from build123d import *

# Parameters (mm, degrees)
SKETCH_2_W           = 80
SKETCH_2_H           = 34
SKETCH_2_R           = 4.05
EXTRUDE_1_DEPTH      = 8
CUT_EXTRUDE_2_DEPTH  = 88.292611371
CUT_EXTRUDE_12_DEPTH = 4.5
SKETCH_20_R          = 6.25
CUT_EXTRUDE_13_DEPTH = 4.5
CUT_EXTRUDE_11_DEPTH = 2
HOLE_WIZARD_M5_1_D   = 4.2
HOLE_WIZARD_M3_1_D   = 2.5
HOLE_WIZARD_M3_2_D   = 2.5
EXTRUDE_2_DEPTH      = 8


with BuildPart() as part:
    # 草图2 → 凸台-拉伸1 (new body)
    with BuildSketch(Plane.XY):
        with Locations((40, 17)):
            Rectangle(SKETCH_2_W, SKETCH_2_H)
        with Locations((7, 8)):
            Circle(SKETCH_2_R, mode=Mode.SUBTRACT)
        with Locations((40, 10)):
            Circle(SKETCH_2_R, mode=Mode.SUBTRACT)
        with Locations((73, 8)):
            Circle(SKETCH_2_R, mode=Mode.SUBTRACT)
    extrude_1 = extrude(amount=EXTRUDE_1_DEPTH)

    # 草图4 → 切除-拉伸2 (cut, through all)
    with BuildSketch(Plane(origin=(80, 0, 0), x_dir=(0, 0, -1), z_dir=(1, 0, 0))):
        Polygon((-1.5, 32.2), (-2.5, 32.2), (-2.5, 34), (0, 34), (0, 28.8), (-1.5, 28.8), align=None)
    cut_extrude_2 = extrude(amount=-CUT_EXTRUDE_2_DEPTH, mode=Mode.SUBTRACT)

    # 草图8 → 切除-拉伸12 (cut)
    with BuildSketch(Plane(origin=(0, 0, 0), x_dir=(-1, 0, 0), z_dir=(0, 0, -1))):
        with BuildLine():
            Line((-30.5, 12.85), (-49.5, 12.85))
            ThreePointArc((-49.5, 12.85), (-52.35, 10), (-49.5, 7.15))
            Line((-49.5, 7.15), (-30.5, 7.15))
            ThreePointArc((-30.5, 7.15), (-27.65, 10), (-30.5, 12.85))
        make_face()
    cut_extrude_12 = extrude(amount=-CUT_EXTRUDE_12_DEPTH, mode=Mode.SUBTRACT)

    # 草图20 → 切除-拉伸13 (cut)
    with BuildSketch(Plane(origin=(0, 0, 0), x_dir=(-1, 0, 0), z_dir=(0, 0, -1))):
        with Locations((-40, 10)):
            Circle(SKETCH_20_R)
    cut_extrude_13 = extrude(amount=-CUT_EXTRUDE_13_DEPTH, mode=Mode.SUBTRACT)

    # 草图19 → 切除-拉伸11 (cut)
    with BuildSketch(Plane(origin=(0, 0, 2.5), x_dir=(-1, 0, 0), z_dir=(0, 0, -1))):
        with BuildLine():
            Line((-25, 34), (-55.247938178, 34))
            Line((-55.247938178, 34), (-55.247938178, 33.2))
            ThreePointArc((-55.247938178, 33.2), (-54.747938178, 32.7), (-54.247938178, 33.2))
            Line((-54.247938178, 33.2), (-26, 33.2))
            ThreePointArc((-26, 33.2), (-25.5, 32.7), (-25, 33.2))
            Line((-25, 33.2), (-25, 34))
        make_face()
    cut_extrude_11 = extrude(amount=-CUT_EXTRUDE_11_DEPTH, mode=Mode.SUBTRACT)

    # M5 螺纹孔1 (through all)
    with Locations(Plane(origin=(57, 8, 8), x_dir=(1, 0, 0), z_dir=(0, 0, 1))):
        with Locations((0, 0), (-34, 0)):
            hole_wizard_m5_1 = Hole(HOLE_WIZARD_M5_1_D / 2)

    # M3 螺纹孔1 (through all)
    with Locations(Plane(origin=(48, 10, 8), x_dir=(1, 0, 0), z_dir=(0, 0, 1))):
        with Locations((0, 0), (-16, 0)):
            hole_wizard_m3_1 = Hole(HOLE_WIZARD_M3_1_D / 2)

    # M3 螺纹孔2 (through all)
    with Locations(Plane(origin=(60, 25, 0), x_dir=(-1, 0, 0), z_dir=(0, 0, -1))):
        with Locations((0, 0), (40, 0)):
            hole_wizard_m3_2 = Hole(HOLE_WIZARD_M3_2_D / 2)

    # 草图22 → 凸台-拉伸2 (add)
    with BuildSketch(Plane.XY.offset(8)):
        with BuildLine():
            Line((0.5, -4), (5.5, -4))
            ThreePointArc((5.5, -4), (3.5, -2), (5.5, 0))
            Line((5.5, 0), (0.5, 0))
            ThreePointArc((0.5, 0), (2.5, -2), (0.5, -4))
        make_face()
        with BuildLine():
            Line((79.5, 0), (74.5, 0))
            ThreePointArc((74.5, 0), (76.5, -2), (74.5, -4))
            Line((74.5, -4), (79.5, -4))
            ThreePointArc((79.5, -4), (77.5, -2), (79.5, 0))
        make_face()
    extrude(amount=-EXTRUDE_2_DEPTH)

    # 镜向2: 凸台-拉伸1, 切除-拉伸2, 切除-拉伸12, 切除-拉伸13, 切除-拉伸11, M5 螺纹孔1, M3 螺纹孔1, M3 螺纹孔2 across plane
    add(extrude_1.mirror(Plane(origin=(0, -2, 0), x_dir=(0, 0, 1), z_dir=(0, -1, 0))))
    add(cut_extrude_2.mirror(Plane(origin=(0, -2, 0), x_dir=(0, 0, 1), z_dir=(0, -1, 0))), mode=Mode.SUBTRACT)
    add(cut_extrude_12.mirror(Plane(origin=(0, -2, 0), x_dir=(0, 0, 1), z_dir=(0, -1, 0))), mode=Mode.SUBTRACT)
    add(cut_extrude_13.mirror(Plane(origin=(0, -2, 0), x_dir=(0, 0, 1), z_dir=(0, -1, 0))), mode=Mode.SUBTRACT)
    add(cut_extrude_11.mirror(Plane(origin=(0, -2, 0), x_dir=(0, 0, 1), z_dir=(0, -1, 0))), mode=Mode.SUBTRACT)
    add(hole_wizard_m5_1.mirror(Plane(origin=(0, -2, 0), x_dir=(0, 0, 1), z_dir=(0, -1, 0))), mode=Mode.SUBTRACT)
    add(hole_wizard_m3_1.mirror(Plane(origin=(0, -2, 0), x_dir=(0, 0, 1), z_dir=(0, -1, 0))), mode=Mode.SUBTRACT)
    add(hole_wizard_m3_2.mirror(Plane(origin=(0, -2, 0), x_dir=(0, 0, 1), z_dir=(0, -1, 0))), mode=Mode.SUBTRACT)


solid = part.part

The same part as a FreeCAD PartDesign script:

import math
import FreeCAD as App
import Part
import Sketcher

V = App.Vector


def add_polygon(sketch, points):
    """Adds a closed chain of lines whose ends are joined by coincident constraints."""
    first, n = sketch.GeometryCount, len(points)
    for a, b in zip(points, points[1:] + points[:1]):
        sketch.addGeometry(Part.LineSegment(App.Vector(*a, 0), App.Vector(*b, 0)), False)
    for i in range(n):
        sketch.addConstraint(Sketcher.Constraint("Coincident", first + i, 2, first + (i + 1) % n, 1))

doc = App.newDocument("Part")
body = doc.addObject("PartDesign::Body", "Body")

# Sketch on XY plane
sketch1 = doc.addObject("Sketcher::SketchObject", "Sketch")
body.addObject(sketch1)
sketch1.AttachmentSupport = (doc.XY_Plane, [""])
sketch1.MapMode = "FlatFace"
add_polygon(sketch1, [(0, 34), (0, 0), (80, 0), (80, 34)])  # lines 0-3
sketch1.addGeometry(Part.Circle(V(7, 8, 0), V(0, 0, 1), 4), False)  # 4
sketch1.addGeometry(Part.Circle(V(73, 8, 0), V(0, 0, 1), 4), False)  # 5
sketch1.addGeometry(Part.Circle(V(40, 10, 0), V(0, 0, 1), 4), False)  # 6
sketch1.addConstraint([
    Sketcher.Constraint("Vertical", 0),
    Sketcher.Constraint("Horizontal", 1),
    Sketcher.Constraint("Vertical", 2),
    Sketcher.Constraint("Horizontal", 3),
    Sketcher.Constraint("Coincident", 0, 2, -1, 1),
    Sketcher.Constraint("Equal", 4, 5),
    Sketcher.Constraint("Equal", 5, 6),
    Sketcher.Constraint("Horizontal", 4, 3, 5, 3),
    Sketcher.Constraint("Diameter", 4, 8.1),
    Sketcher.Constraint("DistanceX", 1, 1, 1, 2, 80.0),
    Sketcher.Constraint("DistanceY", 0, 2, 0, 1, 34.0),
    Sketcher.Constraint("DistanceX", -1, 1, 4, 3, 7.0),
    Sketcher.Constraint("DistanceY", -1, 1, 4, 3, 8.0),
    Sketcher.Constraint("DistanceX", -1, 1, 5, 3, 73.0),
    Sketcher.Constraint("DistanceX", -1, 1, 6, 3, 40.0),
    Sketcher.Constraint("DistanceY", -1, 1, 6, 3, 10.0),
])
pad1 = doc.addObject("PartDesign::Pad", "Pad")
body.addObject(pad1)
pad1.Profile = sketch1
pad1.Length = 8

# Sketch on YZ plane
sketch2 = doc.addObject("Sketcher::SketchObject", "Sketch001")
body.addObject(sketch2)
sketch2.AttachmentSupport = (doc.YZ_Plane, [""])
sketch2.MapMode = "FlatFace"
sketch2.AttachmentOffset = App.Placement(V(0, 0, 80), App.Rotation())
add_polygon(sketch2, [(32.2, 2.5), (32.2, 1.5), (28.8, 1.5), (28.8, 0), (34, 0), (34, 2.5)])  # lines 0-5
sketch2.addConstraint([
    Sketcher.Constraint("Vertical", 0),
    Sketcher.Constraint("Horizontal", 1),
    Sketcher.Constraint("Vertical", 2),
    Sketcher.Constraint("Horizontal", 3),
    Sketcher.Constraint("Vertical", 4),
    Sketcher.Constraint("Horizontal", 5),
    Sketcher.Constraint("PointOnObject", 2, 2, -1),
    Sketcher.Constraint("DistanceY", 0, 2, 0, 1, 1.0),
    Sketcher.Constraint("DistanceX", 1, 2, 1, 1, 3.4),
    Sketcher.Constraint("DistanceX", 3, 1, 3, 2, 5.2),
    Sketcher.Constraint("DistanceY", 2, 2, 2, 1, 1.5),
    Sketcher.Constraint("DistanceX", -1, 1, 3, 2, 34.0),
])
pocket1 = doc.addObject("PartDesign::Pocket", "Pocket")
body.addObject(pocket1)
pocket1.Profile = sketch2
pocket1.Type = "ThroughAll"

# Sketch on XY plane
sketch3 = doc.addObject("Sketcher::SketchObject", "Sketch002")
body.addObject(sketch3)
sketch3.AttachmentSupport = (doc.XY_Plane, [""])
sketch3.MapMode = "FlatFace"
sketch3.addGeometry([
    Part.LineSegment(V(30.5, 12.8, 0), V(49.5, 12.8, 0)),
    Part.ArcOfCircle(Part.Circle(V(49.5, 10, 0), V(0, 0, 1), 2.9), math.radians(-90), math.radians(90)),
    Part.LineSegment(V(49.5, 7.2, 0), V(30.5, 7.2, 0)),
    Part.ArcOfCircle(Part.Circle(V(30.5, 10, 0), V(0, 0, 1), 2.9), math.radians(90), math.radians(270)),
], False)
sketch3.addConstraint([
    Sketcher.Constraint("Tangent", 0, 2, 1, 2),
    Sketcher.Constraint("Tangent", 1, 1, 2, 1),
    Sketcher.Constraint("Tangent", 2, 2, 3, 2),
    Sketcher.Constraint("Tangent", 3, 1, 0, 1),
    Sketcher.Constraint("Horizontal", 0),
    Sketcher.Constraint("Horizontal", 2),
    Sketcher.Constraint("DistanceX", 0, 1, 0, 2, 19.0),
    Sketcher.Constraint("Radius", 1, 2.85),
    Sketcher.Constraint("DistanceY", -1, 1, 1, 3, 10.0),
    Sketcher.Constraint("DistanceX", -1, 1, 1, 3, 49.5),
])
pocket2 = doc.addObject("PartDesign::Pocket", "Pocket001")
body.addObject(pocket2)
pocket2.Profile = sketch3
pocket2.Length = 4.5
pocket2.Reversed = True

# Sketch on XY plane
sketch4 = doc.addObject("Sketcher::SketchObject", "Sketch003")
body.addObject(sketch4)
sketch4.AttachmentSupport = (doc.XY_Plane, [""])
sketch4.MapMode = "FlatFace"
sketch4.addGeometry(Part.Circle(V(40, 10, 0), V(0, 0, 1), 6), False)
sketch4.addConstraint([
    Sketcher.Constraint("Diameter", 0, 12.5),
    Sketcher.Constraint("DistanceX", -1, 1, 0, 3, 40.0),
    Sketcher.Constraint("DistanceY", -1, 1, 0, 3, 10.0),
])
pocket3 = doc.addObject("PartDesign::Pocket", "Pocket002")
body.addObject(pocket3)
pocket3.Profile = sketch4
pocket3.Length = 4.5
pocket3.Reversed = True

# Sketch on XY plane
sketch5 = doc.addObject("Sketcher::SketchObject", "Sketch004")
body.addObject(sketch5)
sketch5.AttachmentSupport = (doc.XY_Plane, [""])
sketch5.MapMode = "FlatFace"
sketch5.AttachmentOffset = App.Placement(V(0, 0, 2.5), App.Rotation())
sketch5.addGeometry([
    Part.LineSegment(V(25, 34, 0), V(55.2, 34, 0)),  # 0
    Part.LineSegment(V(55.2, 34, 0), V(55.2, 33.2, 0)),  # 1
    Part.ArcOfCircle(Part.Circle(V(54.7, 33.2, 0), V(0, 0, 1), 0.5), math.radians(180), math.radians(360)),  # 2
    Part.LineSegment(V(54.2, 33.2, 0), V(26, 33.2, 0)),  # 3
    Part.ArcOfCircle(Part.Circle(V(25.5, 33.2, 0), V(0, 0, 1), 0.5), math.radians(180), math.radians(360)),  # 4
    Part.LineSegment(V(25, 33.2, 0), V(25, 34, 0)),  # 5
], False)
sketch5.addConstraint([
    Sketcher.Constraint("Coincident", 0, 2, 1, 1),
    Sketcher.Constraint("Tangent", 1, 2, 2, 2),
    Sketcher.Constraint("Coincident", 2, 1, 3, 1),
    Sketcher.Constraint("Coincident", 3, 2, 4, 2),
    Sketcher.Constraint("Tangent", 4, 1, 5, 1),
    Sketcher.Constraint("Coincident", 5, 2, 0, 1),
    Sketcher.Constraint("Horizontal", 0),
    Sketcher.Constraint("Vertical", 1),
    Sketcher.Constraint("Horizontal", 3),
    Sketcher.Constraint("Vertical", 5),
    Sketcher.Constraint("Equal", 2, 4),
    Sketcher.Constraint("Horizontal", 2, 3, 4, 3),
    Sketcher.Constraint("Horizontal", 1, 2, 2, 1),
    Sketcher.Constraint("Radius", 2, 0.5),
    Sketcher.Constraint("DistanceY", 1, 2, 1, 1, 0.8),
    Sketcher.Constraint("DistanceY", -1, 1, 0, 2, 34.0),
    Sketcher.Constraint("DistanceX", -1, 1, 3, 2, 26.0),
    Sketcher.Constraint("DistanceX", 0, 1, 0, 2, 30.247938),
])
pocket4 = doc.addObject("PartDesign::Pocket", "Pocket003")
body.addObject(pocket4)
pocket4.Profile = sketch5
pocket4.Length = 2
pocket4.Reversed = True

# Sketch on XY plane
sketch6 = doc.addObject("Sketcher::SketchObject", "Sketch005")
body.addObject(sketch6)
sketch6.AttachmentSupport = (doc.XY_Plane, [""])
sketch6.MapMode = "FlatFace"
sketch6.AttachmentOffset = App.Placement(V(0, 0, 8), App.Rotation())
sketch6.addGeometry([
    Part.Circle(V(57, 8, 0), V(0, 0, 1), 2.1),
    Part.Circle(V(23, 8, 0), V(0, 0, 1), 2.1),
], False)
sketch6.addConstraint([
    Sketcher.Constraint("Equal", 0, 1),
    Sketcher.Constraint("Horizontal", 0, 3, 1, 3),
    Sketcher.Constraint("Diameter", 0, 4.2),
    Sketcher.Constraint("DistanceX", -1, 1, 0, 3, 57.0),
    Sketcher.Constraint("DistanceY", -1, 1, 0, 3, 8.0),
    Sketcher.Constraint("DistanceX", -1, 1, 1, 3, 23.0),
])
doc.recompute()
hole = doc.addObject("PartDesign::Hole", "Hole")
body.addObject(hole)
hole.Profile = sketch6
hole.ThreadType = "None"
hole.Diameter = 4.2
hole.DepthType = "ThroughAll"

# Sketch on XY plane
sketch7 = doc.addObject("Sketcher::SketchObject", "Sketch006")
body.addObject(sketch7)
sketch7.AttachmentSupport = (doc.XY_Plane, [""])
sketch7.MapMode = "FlatFace"
sketch7.AttachmentOffset = App.Placement(V(0, 0, 8), App.Rotation())
sketch7.addGeometry([
    Part.Circle(V(48, 10, 0), V(0, 0, 1), 1.2),
    Part.Circle(V(32, 10, 0), V(0, 0, 1), 1.2),
], False)
sketch7.addConstraint([
    Sketcher.Constraint("Equal", 0, 1),
    Sketcher.Constraint("Horizontal", 0, 3, 1, 3),
    Sketcher.Constraint("Diameter", 0, 2.5),
    Sketcher.Constraint("DistanceX", -1, 1, 0, 3, 48.0),
    Sketcher.Constraint("DistanceY", -1, 1, 0, 3, 10.0),
    Sketcher.Constraint("DistanceX", -1, 1, 1, 3, 32.0),
])
doc.recompute()
hole2 = doc.addObject("PartDesign::Hole", "Hole001")
body.addObject(hole2)
hole2.Profile = sketch7
hole2.ThreadType = "None"
hole2.Diameter = 2.5
hole2.DepthType = "ThroughAll"

# Sketch on XY plane
sketch8 = doc.addObject("Sketcher::SketchObject", "Sketch007")
body.addObject(sketch8)
sketch8.AttachmentSupport = (doc.XY_Plane, [""])
sketch8.MapMode = "FlatFace"
sketch8.addGeometry([
    Part.Circle(V(60, 25, 0), V(0, 0, 1), 1.2),
    Part.Circle(V(20, 25, 0), V(0, 0, 1), 1.2),
], False)
sketch8.addConstraint([
    Sketcher.Constraint("Equal", 0, 1),
    Sketcher.Constraint("Horizontal", 0, 3, 1, 3),
    Sketcher.Constraint("Diameter", 0, 2.5),
    Sketcher.Constraint("DistanceX", -1, 1, 0, 3, 60.0),
    Sketcher.Constraint("DistanceY", -1, 1, 0, 3, 25.0),
    Sketcher.Constraint("DistanceX", -1, 1, 1, 3, 20.0),
])
doc.recompute()
hole3 = doc.addObject("PartDesign::Hole", "Hole002")
body.addObject(hole3)
hole3.Profile = sketch8
hole3.ThreadType = "None"
hole3.Diameter = 2.5
hole3.DepthType = "ThroughAll"
hole3.Reversed = True

# Sketch on XY plane
sketch9 = doc.addObject("Sketcher::SketchObject", "Sketch008")
body.addObject(sketch9)
sketch9.AttachmentSupport = (doc.XY_Plane, [""])
sketch9.MapMode = "FlatFace"
sketch9.AttachmentOffset = App.Placement(V(0, 0, 8), App.Rotation())
sketch9.addGeometry([
    Part.LineSegment(V(0.5, -4, 0), V(5.5, -4, 0)),  # 0
    Part.ArcOfCircle(Part.Circle(V(5.5, -2, 0), V(0, 0, 1), 2), math.radians(90), math.radians(270)),  # 1
    Part.LineSegment(V(5.5, 0, 0), V(0.5, 0, 0)),  # 2
    Part.ArcOfCircle(Part.Circle(V(0.5, -2, 0), V(0, 0, 1), 2), math.radians(-90), math.radians(90)),  # 3
    Part.LineSegment(V(79.5, 0, 0), V(74.5, 0, 0)),  # 4
    Part.ArcOfCircle(Part.Circle(V(74.5, -2, 0), V(0, 0, 1), 2), math.radians(-90), math.radians(90)),  # 5
    Part.LineSegment(V(74.5, -4, 0), V(79.5, -4, 0)),  # 6
    Part.ArcOfCircle(Part.Circle(V(79.5, -2, 0), V(0, 0, 1), 2), math.radians(90), math.radians(270)),  # 7
], False)
sketch9.addConstraint([
    Sketcher.Constraint("Tangent", 0, 2, 1, 2),
    Sketcher.Constraint("Tangent", 1, 1, 2, 1),
    Sketcher.Constraint("Tangent", 2, 2, 3, 2),
    Sketcher.Constraint("Tangent", 3, 1, 0, 1),
    Sketcher.Constraint("Tangent", 4, 2, 5, 2),
    Sketcher.Constraint("Tangent", 5, 1, 6, 1),
    Sketcher.Constraint("Tangent", 6, 2, 7, 2),
    Sketcher.Constraint("Tangent", 7, 1, 4, 1),
    Sketcher.Constraint("Horizontal", 0),
    Sketcher.Constraint("Horizontal", 2),
    Sketcher.Constraint("Horizontal", 4),
    Sketcher.Constraint("Horizontal", 6),
    Sketcher.Constraint("Equal", 3, 5),
    Sketcher.Constraint("PointOnObject", 1, 1, -1),
    Sketcher.Constraint("PointOnObject", 4, 2, -1),
    Sketcher.Constraint("Equal", 2, 4),
    Sketcher.Constraint("Radius", 1, 2.0),
    Sketcher.Constraint("DistanceX", 0, 1, 0, 2, 5.0),
    Sketcher.Constraint("DistanceX", 1, 3, 5, 3, 69.0),
    Sketcher.Constraint("DistanceX", -1, 1, 1, 3, 5.5),
])
pad2 = doc.addObject("PartDesign::Pad", "Pad001")
body.addObject(pad2)
pad2.Profile = sketch9
pad2.Length = 8
pad2.Reversed = True
doc.recompute()

datumplane = doc.addObject("PartDesign::Plane", "DatumPlane")
body.addObject(datumplane)
datumplane.AttachmentSupport = (doc.XZ_Plane, [""])
datumplane.MapMode = "FlatFace"
datumplane.AttachmentOffset = App.Placement(V(0, 0, 2), App.Rotation())
mirrored = doc.addObject("PartDesign::Mirrored", "Mirrored")
body.addObject(mirrored)
mirrored.Originals = [pad1, pocket1, pocket2, pocket3, pocket4, hole, hole2, hole3]
mirrored.MirrorPlane = (datumplane, [""])
body.Tip = mirrored

doc.recompute()
